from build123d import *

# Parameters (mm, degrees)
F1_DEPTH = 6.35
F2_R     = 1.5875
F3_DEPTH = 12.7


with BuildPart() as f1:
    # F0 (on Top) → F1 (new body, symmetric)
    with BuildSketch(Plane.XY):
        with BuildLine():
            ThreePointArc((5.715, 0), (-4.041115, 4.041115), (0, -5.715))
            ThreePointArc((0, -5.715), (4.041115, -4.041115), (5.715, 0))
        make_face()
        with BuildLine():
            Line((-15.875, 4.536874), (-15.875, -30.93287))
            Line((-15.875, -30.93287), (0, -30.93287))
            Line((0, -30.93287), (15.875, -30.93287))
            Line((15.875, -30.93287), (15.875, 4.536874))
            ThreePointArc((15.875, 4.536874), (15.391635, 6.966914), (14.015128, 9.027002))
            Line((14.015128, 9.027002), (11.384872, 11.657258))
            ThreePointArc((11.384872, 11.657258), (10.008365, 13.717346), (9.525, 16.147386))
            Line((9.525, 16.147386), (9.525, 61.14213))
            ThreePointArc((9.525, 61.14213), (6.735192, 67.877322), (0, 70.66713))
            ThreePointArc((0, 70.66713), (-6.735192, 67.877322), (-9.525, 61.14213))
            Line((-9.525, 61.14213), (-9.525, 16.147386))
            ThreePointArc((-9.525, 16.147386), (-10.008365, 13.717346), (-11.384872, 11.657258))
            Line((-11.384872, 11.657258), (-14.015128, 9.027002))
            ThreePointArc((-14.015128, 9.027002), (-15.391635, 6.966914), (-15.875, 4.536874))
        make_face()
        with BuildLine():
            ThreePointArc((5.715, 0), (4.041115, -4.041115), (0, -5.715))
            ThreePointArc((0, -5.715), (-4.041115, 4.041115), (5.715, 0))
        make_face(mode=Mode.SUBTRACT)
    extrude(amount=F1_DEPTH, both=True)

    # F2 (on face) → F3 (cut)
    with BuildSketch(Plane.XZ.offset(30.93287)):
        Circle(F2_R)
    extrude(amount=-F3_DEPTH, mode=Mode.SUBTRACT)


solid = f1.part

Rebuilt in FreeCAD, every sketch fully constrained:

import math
import FreeCAD as App
import Part
import Sketcher

V = App.Vector
Q = App.Units.Quantity

doc = App.newDocument("Part")
body = doc.addObject("PartDesign::Body", "Body")

# Sketch on XY plane
sketch1 = body.newObject("Sketcher::SketchObject", "Sketch")
sketch1.AttachmentSupport = (doc.getObject("XY_Plane"), [""])
sketch1.MapMode = "FlatFace"
sketch1.addGeometry([
    Part.LineSegment(V(-15.875, 4.536874, 0), V(-15.875, -30.93287, 0)),  # 0
    Part.LineSegment(V(-15.875, -30.93287, 0), V(15.875, -30.93287, 0)),  # 1
    Part.LineSegment(V(15.875, -30.93287, 0), V(15.875, 4.536874, 0)),  # 2
    Part.ArcOfCircle(Part.Circle(V(9.525001, 4.536874, 0), V(0, 0, 1), 6.349999), math.radians(-0.000003), math.radians(45.000005)),  # 3
    Part.LineSegment(V(14.015128, 9.027002, 0), V(11.384872, 11.657258, 0)),  # 4
    Part.ArcOfCircle(Part.Circle(V(15.874999, 16.147386, 0), V(0, 0, 1), 6.349999), math.radians(179.999997), math.radians(225.000005)),  # 5
    Part.LineSegment(V(9.525, 16.147386, 0), V(9.525, 61.14213, 0)),  # 6
    Part.ArcOfCircle(Part.Circle(V(0, 61.14213, 0), V(0, 0, 1), 9.525), math.radians(0.000002), math.radians(89.999998)),  # 7
    Part.ArcOfCircle(Part.Circle(V(0, 61.14213, 0), V(0, 0, 1), 9.525), math.radians(90.000002), math.radians(179.999998)),  # 8
    Part.LineSegment(V(-9.525, 61.14213, 0), V(-9.525, 16.147386, 0)),  # 9
    Part.ArcOfCircle(Part.Circle(V(-15.874999, 16.147386, 0), V(0, 0, 1), 6.349999), math.radians(-45.000005), math.radians(0.000003)),  # 10
    Part.LineSegment(V(-11.384872, 11.657258, 0), V(-14.015128, 9.027002, 0)),  # 11
    Part.ArcOfCircle(Part.Circle(V(-9.525001, 4.536874, 0), V(0, 0, 1), 6.349999), math.radians(134.999995), math.radians(180.000003)),  # 12
    Part.ArcOfCircle(Part.Circle(V(0, 0, 0), V(0, 0, 1), 5.715), math.radians(0.000001), math.radians(269.999999)),  # 13
    Part.ArcOfCircle(Part.Circle(V(-0.000001, 0.000001, 0), V(0, 0, 1), 5.715001), math.radians(-89.999991), math.radians(-0.000009)),  # 14
], False)
sketch1.addConstraint([
    Sketcher.Constraint("Coincident", 0, 2, 1, 1),
    Sketcher.Constraint("Coincident", 1, 2, 2, 1),
    Sketcher.Constraint("Tangent", 2, 2, 3, 1),
    Sketcher.Constraint("Tangent", 3, 2, 4, 1),
    Sketcher.Constraint("Tangent", 4, 2, 5, 2),
    Sketcher.Constraint("Tangent", 5, 1, 6, 1),
    Sketcher.Constraint("Tangent", 6, 2, 7, 1),
    Sketcher.Constraint("Tangent", 7, 2, 8, 1),
    Sketcher.Constraint("Tangent", 8, 2, 9, 1),
    Sketcher.Constraint("Tangent", 9, 2, 10, 2),
    Sketcher.Constraint("Tangent", 10, 1, 11, 1),
    Sketcher.Constraint("Tangent", 11, 2, 12, 1),
    Sketcher.Constraint("Tangent", 12, 2, 0, 1),
    Sketcher.Constraint("Tangent", 13, 1, 14, 2),
    Sketcher.Constraint("Coincident", 14, 1, 13, 2),
    Sketcher.Constraint("Vertical", 0),
    Sketcher.Constraint("Horizontal", 1),
    Sketcher.Constraint("Vertical", 2),
    Sketcher.Constraint("Vertical", 6),
    Sketcher.Constraint("Vertical", 9),
    Sketcher.Constraint("Coincident", 13, 3, -1, 1),
    Sketcher.Constraint("Equal", 3, 5),
    Sketcher.Constraint("Equal", 7, 8),
    Sketcher.Constraint("Equal", 5, 10),
    Sketcher.Constraint("Equal", 10, 12),
    Sketcher.Constraint("Symmetric", 5, 3, 10, 3, -2),
    Sketcher.Constraint("Symmetric", 3, 3, 12, 3, -2),
    Sketcher.Constraint("PointOnObject", 7, 2, -2),
    Sketcher.Constraint("PointOnObject", 13, 1, -1),
    Sketcher.Constraint("PointOnObject", 14, 1, -2),
    Sketcher.Constraint("Perpendicular", 4, 11),
    Sketcher.Constraint("Vertical", 10, 3, 0, 2),
    Sketcher.Constraint("Radius", 3, Q("0.25 in")),
    Sketcher.Constraint("Radius", 7, Q("0.375 in")),
    Sketcher.Constraint("Radius", 13, Q("0.225 in")),
    Sketcher.Constraint("DistanceY", -1, 1, 3, 2, 9.027002),
    Sketcher.Constraint("DistanceY", 0, 2, 0, 1, 35.469744),
    Sketcher.Constraint("DistanceY", 6, 1, 6, 2, 44.994744),
])
pad1 = body.newObject("PartDesign::Pad", "Pad")
pad1.Profile = sketch1
pad1.Length = Q("0.5 in")
pad1.Midplane = True

# Sketch on XZ plane
sketch2 = body.newObject("Sketcher::SketchObject", "Sketch001")
sketch2.AttachmentSupport = (doc.getObject("XZ_Plane"), [""])
sketch2.MapMode = "FlatFace"
sketch2.AttachmentOffset = App.Placement(V(0, 0, 30.93287), App.Rotation())
sketch2.addGeometry(Part.Circle(V(0, 0, 0), V(0, 0, 1), 1.5875), False)
sketch2.addConstraint([
    Sketcher.Constraint("Coincident", 0, 3, -1, 1),
    Sketcher.Constraint("Diameter", 0, Q("0.125 in")),
])
pocket1 = body.newObject("PartDesign::Pocket", "Pocket")
pocket1.Profile = sketch2
pocket1.Length = Q("0.5 in")

doc.recompute()
